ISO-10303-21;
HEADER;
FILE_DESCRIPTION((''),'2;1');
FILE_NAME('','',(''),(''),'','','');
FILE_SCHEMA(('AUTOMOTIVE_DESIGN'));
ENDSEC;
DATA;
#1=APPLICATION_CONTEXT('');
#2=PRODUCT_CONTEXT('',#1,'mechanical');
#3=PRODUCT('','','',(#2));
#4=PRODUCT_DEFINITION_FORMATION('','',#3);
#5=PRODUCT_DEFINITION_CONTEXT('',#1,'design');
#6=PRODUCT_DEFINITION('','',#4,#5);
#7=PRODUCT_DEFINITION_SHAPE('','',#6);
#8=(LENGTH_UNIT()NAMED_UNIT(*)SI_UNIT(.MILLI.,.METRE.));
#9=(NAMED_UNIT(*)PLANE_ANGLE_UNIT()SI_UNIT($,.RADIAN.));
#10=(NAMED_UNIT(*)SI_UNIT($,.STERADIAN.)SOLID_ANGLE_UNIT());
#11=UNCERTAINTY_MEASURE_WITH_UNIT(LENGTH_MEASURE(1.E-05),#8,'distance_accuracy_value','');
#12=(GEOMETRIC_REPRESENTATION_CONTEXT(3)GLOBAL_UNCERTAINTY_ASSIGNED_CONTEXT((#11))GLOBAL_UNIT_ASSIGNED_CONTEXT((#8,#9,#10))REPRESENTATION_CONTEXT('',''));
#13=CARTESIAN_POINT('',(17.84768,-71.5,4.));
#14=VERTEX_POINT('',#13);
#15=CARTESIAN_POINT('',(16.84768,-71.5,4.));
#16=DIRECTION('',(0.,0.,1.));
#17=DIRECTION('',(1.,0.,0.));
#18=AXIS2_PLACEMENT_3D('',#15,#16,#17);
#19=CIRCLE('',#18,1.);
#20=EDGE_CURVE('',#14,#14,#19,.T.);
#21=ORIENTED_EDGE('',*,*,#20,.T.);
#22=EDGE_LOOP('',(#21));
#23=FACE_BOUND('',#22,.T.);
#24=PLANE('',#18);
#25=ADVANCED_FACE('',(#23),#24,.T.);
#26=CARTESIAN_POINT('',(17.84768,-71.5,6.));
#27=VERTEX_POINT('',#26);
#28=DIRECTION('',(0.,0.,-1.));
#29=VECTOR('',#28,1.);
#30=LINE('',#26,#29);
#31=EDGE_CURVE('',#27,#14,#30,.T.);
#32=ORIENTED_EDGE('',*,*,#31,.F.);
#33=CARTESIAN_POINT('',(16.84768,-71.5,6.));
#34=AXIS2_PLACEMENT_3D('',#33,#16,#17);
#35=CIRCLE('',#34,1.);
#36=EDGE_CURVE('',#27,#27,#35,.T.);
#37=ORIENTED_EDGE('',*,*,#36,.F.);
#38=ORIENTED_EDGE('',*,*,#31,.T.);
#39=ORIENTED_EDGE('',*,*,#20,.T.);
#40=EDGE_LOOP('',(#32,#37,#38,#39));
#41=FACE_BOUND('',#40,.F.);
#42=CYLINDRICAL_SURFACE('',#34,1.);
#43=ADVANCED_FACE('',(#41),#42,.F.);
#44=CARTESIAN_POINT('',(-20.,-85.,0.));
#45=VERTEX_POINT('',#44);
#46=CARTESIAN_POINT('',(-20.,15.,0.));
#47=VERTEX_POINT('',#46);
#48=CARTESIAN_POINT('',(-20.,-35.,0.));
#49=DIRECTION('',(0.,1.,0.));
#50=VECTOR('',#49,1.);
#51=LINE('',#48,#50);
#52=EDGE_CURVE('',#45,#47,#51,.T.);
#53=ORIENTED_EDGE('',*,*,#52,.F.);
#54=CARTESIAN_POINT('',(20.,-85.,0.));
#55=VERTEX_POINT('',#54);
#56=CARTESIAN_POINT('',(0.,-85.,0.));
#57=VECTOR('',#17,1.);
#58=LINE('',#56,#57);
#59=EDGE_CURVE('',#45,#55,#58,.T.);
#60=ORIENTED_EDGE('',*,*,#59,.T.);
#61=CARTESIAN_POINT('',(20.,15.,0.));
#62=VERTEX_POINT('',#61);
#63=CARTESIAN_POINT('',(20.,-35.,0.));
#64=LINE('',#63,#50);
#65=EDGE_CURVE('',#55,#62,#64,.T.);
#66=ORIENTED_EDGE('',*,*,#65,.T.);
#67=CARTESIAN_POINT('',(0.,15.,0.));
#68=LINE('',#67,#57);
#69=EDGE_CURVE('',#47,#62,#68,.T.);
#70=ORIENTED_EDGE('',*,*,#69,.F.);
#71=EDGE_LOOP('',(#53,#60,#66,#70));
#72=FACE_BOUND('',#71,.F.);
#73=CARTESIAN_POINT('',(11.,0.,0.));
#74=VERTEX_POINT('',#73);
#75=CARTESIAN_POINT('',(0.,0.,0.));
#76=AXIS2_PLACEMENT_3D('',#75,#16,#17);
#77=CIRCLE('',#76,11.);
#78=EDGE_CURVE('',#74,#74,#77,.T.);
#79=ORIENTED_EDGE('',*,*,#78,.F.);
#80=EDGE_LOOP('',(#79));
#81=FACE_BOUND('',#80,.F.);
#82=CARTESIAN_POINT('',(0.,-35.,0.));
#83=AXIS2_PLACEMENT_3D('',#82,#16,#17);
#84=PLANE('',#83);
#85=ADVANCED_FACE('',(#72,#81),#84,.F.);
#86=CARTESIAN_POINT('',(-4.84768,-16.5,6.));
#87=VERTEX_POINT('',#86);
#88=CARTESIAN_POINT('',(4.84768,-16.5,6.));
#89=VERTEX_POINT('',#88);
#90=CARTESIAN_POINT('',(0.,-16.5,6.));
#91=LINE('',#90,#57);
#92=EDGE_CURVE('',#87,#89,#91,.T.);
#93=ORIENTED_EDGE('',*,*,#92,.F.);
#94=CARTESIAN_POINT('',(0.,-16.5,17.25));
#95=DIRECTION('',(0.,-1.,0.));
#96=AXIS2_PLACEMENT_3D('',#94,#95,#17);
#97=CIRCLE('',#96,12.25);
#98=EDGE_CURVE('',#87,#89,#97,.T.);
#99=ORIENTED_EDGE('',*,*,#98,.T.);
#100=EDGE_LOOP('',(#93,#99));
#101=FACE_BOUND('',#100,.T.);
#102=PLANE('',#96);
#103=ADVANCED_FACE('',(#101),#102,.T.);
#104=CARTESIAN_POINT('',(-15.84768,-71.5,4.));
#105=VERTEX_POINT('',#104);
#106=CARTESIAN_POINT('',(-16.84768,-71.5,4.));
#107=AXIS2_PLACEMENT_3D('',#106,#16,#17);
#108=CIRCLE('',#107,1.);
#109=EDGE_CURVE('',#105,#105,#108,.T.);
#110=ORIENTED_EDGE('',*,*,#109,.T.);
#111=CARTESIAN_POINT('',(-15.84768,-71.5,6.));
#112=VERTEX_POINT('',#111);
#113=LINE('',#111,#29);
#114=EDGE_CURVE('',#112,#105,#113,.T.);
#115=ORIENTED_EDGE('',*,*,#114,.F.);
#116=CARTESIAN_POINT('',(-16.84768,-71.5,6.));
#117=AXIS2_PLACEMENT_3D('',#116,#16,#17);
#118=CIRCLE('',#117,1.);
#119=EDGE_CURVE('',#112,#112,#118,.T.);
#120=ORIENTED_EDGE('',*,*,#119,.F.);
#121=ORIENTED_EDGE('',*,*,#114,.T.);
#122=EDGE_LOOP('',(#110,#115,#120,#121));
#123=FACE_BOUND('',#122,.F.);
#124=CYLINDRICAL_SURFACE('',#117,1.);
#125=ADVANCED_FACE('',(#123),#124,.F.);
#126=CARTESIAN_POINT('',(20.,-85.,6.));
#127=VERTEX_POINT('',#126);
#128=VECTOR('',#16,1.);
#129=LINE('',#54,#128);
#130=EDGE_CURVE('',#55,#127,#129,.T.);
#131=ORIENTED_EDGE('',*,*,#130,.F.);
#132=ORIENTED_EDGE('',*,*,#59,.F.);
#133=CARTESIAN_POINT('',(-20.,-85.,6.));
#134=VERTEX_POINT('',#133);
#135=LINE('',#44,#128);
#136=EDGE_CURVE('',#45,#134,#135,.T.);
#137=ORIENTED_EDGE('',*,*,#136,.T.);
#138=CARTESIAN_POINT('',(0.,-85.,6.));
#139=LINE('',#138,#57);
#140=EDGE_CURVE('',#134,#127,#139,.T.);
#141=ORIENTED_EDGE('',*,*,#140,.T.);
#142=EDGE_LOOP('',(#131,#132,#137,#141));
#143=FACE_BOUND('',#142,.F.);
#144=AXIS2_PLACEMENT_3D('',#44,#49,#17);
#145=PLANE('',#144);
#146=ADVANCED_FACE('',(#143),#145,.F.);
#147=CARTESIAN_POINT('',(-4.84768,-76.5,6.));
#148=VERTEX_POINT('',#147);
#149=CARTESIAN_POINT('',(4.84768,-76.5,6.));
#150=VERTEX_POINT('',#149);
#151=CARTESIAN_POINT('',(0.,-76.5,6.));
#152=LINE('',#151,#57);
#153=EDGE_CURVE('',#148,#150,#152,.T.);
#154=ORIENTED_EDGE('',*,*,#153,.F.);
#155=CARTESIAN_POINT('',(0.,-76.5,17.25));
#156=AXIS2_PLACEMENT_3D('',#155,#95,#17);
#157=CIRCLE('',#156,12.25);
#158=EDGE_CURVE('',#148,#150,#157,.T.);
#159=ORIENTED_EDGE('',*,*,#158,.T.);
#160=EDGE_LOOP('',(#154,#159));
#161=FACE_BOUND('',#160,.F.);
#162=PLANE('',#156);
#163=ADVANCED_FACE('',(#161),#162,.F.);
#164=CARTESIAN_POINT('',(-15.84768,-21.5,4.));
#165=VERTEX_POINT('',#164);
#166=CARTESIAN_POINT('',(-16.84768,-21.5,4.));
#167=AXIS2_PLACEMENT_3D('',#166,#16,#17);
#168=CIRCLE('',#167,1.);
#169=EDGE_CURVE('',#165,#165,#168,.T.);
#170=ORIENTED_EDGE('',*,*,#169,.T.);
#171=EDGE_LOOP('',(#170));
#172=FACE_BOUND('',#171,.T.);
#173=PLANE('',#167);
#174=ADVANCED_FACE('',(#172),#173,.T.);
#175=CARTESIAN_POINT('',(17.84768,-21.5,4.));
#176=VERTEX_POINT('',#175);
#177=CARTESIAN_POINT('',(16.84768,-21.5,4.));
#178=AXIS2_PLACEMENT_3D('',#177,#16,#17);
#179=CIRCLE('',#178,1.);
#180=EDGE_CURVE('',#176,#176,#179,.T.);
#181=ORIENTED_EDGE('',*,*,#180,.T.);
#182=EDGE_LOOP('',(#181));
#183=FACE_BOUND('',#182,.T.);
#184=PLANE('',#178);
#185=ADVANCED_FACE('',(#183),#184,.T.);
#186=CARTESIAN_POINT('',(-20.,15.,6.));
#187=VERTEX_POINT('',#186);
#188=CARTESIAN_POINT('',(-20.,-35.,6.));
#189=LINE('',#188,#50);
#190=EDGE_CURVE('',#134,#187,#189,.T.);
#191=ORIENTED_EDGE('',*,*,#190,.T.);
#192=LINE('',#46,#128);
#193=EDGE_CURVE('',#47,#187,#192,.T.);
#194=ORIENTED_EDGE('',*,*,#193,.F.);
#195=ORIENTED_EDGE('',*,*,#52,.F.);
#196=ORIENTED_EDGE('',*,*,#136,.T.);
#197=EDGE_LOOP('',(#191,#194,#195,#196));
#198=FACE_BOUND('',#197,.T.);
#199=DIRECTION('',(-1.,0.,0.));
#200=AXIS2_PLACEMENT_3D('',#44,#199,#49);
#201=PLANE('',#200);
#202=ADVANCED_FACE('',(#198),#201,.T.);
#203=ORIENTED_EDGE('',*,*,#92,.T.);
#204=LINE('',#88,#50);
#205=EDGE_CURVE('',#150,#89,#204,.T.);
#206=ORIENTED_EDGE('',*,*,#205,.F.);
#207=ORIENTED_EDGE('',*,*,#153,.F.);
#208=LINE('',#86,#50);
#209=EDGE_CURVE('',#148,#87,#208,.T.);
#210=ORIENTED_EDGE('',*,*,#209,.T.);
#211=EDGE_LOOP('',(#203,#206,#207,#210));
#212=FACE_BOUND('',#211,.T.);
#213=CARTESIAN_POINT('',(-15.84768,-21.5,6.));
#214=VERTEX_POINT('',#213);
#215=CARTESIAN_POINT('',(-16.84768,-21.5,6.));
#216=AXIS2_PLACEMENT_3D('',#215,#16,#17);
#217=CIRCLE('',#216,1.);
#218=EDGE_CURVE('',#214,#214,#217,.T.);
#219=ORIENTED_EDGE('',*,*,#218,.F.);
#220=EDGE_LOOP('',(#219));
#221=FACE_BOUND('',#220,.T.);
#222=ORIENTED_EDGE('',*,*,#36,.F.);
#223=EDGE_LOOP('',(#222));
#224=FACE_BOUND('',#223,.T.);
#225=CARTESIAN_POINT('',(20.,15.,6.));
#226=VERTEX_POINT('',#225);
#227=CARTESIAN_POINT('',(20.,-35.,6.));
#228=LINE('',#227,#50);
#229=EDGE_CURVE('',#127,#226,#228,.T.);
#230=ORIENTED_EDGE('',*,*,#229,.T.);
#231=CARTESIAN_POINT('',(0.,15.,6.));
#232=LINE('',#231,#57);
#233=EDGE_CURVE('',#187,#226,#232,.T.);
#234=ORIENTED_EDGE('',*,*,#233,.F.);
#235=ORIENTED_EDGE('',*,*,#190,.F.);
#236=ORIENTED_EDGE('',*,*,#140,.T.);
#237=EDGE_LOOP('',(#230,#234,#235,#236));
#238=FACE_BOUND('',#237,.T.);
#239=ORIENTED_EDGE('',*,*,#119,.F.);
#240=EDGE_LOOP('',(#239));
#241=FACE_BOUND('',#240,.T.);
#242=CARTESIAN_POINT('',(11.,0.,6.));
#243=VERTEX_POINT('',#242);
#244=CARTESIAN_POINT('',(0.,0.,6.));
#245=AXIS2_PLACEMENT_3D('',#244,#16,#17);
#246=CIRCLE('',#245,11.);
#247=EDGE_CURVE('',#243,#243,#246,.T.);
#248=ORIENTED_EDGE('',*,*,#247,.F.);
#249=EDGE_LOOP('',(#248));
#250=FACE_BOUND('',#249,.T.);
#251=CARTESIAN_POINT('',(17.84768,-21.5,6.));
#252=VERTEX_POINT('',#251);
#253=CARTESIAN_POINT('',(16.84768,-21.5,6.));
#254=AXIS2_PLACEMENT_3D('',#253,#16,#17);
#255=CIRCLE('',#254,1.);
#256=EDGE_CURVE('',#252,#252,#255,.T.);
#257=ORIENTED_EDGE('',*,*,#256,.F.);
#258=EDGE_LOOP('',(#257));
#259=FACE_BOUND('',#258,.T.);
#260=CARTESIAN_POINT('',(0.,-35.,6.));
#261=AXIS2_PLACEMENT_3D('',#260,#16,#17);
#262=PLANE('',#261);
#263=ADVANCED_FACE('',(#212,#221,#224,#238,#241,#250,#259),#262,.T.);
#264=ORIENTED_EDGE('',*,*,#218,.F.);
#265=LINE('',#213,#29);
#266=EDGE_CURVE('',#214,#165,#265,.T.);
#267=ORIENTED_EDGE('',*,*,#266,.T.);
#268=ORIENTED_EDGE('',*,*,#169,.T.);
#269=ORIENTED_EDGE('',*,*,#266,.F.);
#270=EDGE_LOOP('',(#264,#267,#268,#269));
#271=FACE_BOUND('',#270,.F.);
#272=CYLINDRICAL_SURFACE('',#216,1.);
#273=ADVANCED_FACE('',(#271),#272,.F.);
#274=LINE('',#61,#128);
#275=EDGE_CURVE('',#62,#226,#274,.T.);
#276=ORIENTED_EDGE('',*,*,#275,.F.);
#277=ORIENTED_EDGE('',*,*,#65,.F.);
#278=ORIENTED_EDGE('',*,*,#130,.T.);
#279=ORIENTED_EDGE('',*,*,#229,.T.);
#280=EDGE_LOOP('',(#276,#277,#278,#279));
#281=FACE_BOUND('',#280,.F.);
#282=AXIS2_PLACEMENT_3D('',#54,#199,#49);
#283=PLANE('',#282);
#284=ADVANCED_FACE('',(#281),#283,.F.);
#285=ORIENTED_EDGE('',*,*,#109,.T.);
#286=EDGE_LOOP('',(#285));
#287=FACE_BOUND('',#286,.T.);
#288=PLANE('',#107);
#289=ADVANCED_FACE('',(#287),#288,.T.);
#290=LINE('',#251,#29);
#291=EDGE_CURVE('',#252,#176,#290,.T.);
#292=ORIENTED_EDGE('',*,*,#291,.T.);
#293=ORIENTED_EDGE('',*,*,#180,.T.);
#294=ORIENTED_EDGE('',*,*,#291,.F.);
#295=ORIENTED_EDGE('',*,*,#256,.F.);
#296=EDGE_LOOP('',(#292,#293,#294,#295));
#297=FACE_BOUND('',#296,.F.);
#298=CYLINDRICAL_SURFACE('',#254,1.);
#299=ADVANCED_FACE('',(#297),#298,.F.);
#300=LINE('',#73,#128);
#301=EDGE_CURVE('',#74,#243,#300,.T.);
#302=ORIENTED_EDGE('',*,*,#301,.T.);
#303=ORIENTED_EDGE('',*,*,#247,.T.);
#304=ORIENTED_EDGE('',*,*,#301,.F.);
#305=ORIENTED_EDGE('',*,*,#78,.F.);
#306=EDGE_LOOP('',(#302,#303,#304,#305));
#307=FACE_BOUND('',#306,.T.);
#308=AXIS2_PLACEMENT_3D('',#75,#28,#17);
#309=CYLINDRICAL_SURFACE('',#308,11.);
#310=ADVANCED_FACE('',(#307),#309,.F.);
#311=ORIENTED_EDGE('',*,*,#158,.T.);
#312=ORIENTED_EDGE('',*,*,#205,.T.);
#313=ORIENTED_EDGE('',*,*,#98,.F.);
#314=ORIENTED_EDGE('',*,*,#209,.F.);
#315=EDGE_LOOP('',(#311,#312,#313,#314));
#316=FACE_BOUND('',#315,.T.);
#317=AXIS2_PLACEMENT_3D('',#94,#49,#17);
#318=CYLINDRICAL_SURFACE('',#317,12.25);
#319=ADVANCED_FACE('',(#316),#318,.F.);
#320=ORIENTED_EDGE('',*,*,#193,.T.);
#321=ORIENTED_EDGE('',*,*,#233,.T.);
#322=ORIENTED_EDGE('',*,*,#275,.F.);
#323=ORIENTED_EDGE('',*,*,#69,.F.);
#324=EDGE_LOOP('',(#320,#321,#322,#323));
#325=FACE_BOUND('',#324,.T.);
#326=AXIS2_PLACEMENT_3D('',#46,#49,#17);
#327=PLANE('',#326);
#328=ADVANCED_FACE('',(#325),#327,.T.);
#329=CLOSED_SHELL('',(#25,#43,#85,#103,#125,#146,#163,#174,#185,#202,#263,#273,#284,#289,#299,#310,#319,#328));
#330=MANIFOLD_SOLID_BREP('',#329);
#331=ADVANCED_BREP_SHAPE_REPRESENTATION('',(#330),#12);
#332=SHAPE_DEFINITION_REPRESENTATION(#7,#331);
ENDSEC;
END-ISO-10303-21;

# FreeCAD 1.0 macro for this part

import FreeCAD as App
import Part
import Sketcher

V = App.Vector
Q = App.Units.Quantity

doc = App.newDocument("Part")
body = doc.addObject("PartDesign::Body", "Body")

# Sketch on XY plane
sketch1 = body.newObject("Sketcher::SketchObject", "Sketch")
sketch1.AttachmentSupport = (doc.getObject("XY_Plane"), [""])
sketch1.MapMode = "FlatFace"
sketch1.addGeometry(Part.LineSegment(V(-20, 15, 0), V(-20, -85, 0)), False)
sketch1.addGeometry(Part.LineSegment(V(-20, -85, 0), V(20, -85, 0)), False)
sketch1.addGeometry(Part.LineSegment(V(20, -85, 0), V(20, 15, 0)), False)
sketch1.addGeometry(Part.LineSegment(V(20, 15, 0), V(-20, 15, 0)), False)
sketch1.addGeometry(Part.Circle(V(0, 0, 0), V(0, 0, 1), 11), False)
sketch1.addConstraint(Sketcher.Constraint("Coincident", 0, 2, 1, 1))
sketch1.addConstraint(Sketcher.Constraint("Coincident", 1, 2, 2, 1))
sketch1.addConstraint(Sketcher.Constraint("Coincident", 2, 2, 3, 1))
sketch1.addConstraint(Sketcher.Constraint("Coincident", 3, 2, 0, 1))
sketch1.addConstraint(Sketcher.Constraint("Vertical", 0))
sketch1.addConstraint(Sketcher.Constraint("Horizontal", 1))
sketch1.addConstraint(Sketcher.Constraint("Vertical", 2))
sketch1.addConstraint(Sketcher.Constraint("Horizontal", 3))
sketch1.addConstraint(Sketcher.Constraint("Coincident", 4, 3, -1, 1))
sketch1.addConstraint(Sketcher.Constraint("Diameter", 4, Q("22 mm")))
sketch1.addConstraint(Sketcher.Constraint("DistanceX", 1, 1, 1, 2, Q("40 mm")))
sketch1.addConstraint(Sketcher.Constraint("DistanceY", 0, 2, 0, 1, Q("100 mm")))
sketch1.addConstraint(Sketcher.Constraint("DistanceX", 0, 2, -1, 1, Q("20 mm")))
sketch1.addConstraint(Sketcher.Constraint("DistanceY", 0, 2, -1, 1, Q("85 mm")))
pad1 = body.newObject("PartDesign::Pad", "Pad")
pad1.Profile = sketch1
pad1.Length = 6

# Sketch on XZ plane
sketch2 = body.newObject("Sketcher::SketchObject", "Sketch001")
sketch2.AttachmentSupport = (doc.getObject("XZ_Plane"), [""])
sketch2.MapMode = "FlatFace"
sketch2.AttachmentOffset = App.Placement(V(0, 0, 16.5), App.Rotation())
sketch2.addGeometry(Part.Circle(V(0, 17, 0), V(0, 0, 1), 12), False)
sketch2.addConstraint(Sketcher.Constraint("PointOnObject", 0, 3, -2))
sketch2.addConstraint(Sketcher.Constraint("Diameter", 0, Q("24.5 mm")))
sketch2.addConstraint(Sketcher.Constraint("DistanceY", -1, 1, 0, 3, Q("17.25 mm")))
pocket1 = body.newObject("PartDesign::Pocket", "Pocket")
pocket1.Profile = sketch2
pocket1.Length = 60
pocket1.Reversed = True

# Sketch on XY plane
sketch3 = body.newObject("Sketcher::SketchObject", "Sketch002")
sketch3.AttachmentSupport = (doc.getObject("XY_Plane"), [""])
sketch3.MapMode = "FlatFace"
sketch3.AttachmentOffset = App.Placement(V(0, 0, 6), App.Rotation())
sketch3.addGeometry(Part.Circle(V(-16.8, -21.5, 0), V(0, 0, 1), 1), False)
sketch3.addGeometry(Part.Circle(V(16.8, -21.5, 0), V(0, 0, 1), 1), False)
sketch3.addGeometry(Part.Circle(V(-16.8, -71.5, 0), V(0, 0, 1), 1), False)
sketch3.addGeometry(Part.Circle(V(16.8, -71.5, 0), V(0, 0, 1), 1), False)
sketch3.addConstraint(Sketcher.Constraint("Equal", 0, 1))
sketch3.addConstraint(Sketcher.Constraint("Equal", 1, 2))
sketch3.addConstraint(Sketcher.Constraint("Equal", 2, 3))
sketch3.addConstraint(Sketcher.Constraint("Symmetric", 0, 3, 1, 3, -2))
sketch3.addConstraint(Sketcher.Constraint("Symmetric", 2, 3, 3, 3, -2))
sketch3.addConstraint(Sketcher.Constraint("Vertical", 0, 3, 2, 3))
sketch3.addConstraint(Sketcher.Constraint("Diameter", 0, Q("2 mm")))
sketch3.addConstraint(Sketcher.Constraint("DistanceY", 2, 3, 0, 3, Q("50 mm")))
sketch3.addConstraint(Sketcher.Constraint("DistanceY", 0, 3, -1, 1, Q("21.5 mm")))
sketch3.addConstraint(Sketcher.Constraint("DistanceX", 0, 3, -1, 1, Q("16.84768 mm")))
pocket2 = body.newObject("PartDesign::Pocket", "Pocket001")
pocket2.Profile = sketch3
pocket2.Length = 2

doc.recompute()
